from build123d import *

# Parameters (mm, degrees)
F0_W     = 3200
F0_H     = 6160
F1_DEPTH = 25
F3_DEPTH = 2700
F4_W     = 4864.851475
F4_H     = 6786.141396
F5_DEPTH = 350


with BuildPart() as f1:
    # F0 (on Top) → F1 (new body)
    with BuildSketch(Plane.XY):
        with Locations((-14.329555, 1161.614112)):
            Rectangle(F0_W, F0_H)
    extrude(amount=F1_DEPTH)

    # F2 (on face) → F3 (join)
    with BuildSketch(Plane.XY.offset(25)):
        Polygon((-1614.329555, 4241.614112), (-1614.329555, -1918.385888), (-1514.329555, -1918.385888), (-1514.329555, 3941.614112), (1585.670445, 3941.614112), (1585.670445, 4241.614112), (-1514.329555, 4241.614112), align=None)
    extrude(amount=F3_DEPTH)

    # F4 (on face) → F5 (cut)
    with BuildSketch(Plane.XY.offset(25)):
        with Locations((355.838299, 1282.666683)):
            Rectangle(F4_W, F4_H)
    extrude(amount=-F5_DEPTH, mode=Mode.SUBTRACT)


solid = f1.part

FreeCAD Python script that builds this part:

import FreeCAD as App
import Part
import Sketcher
from FreeCAD import Vector
Q = App.Units.Quantity

doc = App.newDocument("Part")
body = doc.addObject("PartDesign::Body", "Body")

sketch1 = body.newObject("Sketcher::SketchObject", "Sketch")
sketch1.AttachmentSupport = (doc.getObject("XY_Plane"), [""])
sketch1.MapMode = "FlatFace"
sketch1.addGeometry([
    Part.LineSegment(Vector(-1614, 4242, 0), Vector(-1614, -1918, 0)),
    Part.LineSegment(Vector(-1614, -1918, 0), Vector(1586, -1918, 0)),
    Part.LineSegment(Vector(1586, -1918, 0), Vector(1586, 4242, 0)),
    Part.LineSegment(Vector(1586, 4242, 0), Vector(-1614, 4242, 0)),
], False)
sketch1.addConstraint([
    Sketcher.Constraint("Coincident", 0, 2, 1, 1),
    Sketcher.Constraint("Coincident", 1, 2, 2, 1),
    Sketcher.Constraint("Coincident", 2, 2, 3, 1),
    Sketcher.Constraint("Coincident", 3, 2, 0, 1),
    Sketcher.Constraint("Vertical", 0),
    Sketcher.Constraint("Horizontal", 1),
    Sketcher.Constraint("Vertical", 2),
    Sketcher.Constraint("Horizontal", 3),
    Sketcher.Constraint("DistanceX", 1, 1, 1, 2, Q("3200 mm")),
    Sketcher.Constraint("DistanceY", 0, 2, 0, 1, Q("6160 mm")),
    Sketcher.Constraint("DistanceY", 0, 2, -1, 1, Q("1918.385888 mm")),
    Sketcher.Constraint("DistanceX", 0, 2, -1, 1, Q("1614.329555 mm")),
])
pad1 = body.newObject("PartDesign::Pad", "Pad")
pad1.Profile = sketch1
pad1.Length = 25

sketch2 = body.newObject("Sketcher::SketchObject", "Sketch001")
sketch2.AttachmentSupport = (doc.getObject("XY_Plane"), [""])
sketch2.MapMode = "FlatFace"
sketch2.AttachmentOffset = App.Placement(Vector(0, 0, 25), App.Rotation())
sketch2.addGeometry([
    Part.LineSegment(Vector(-1614, 4242, 0), Vector(-1614, -1918, 0)),
    Part.LineSegment(Vector(-1614, -1918, 0), Vector(-1514, -1918, 0)),
    Part.LineSegment(Vector(-1514, -1918, 0), Vector(-1514, 3942, 0)),
    Part.LineSegment(Vector(-1514, 3942, 0), Vector(1586, 3942, 0)),
    Part.LineSegment(Vector(1586, 3942, 0), Vector(1586, 4242, 0)),
    Part.LineSegment(Vector(1586, 4242, 0), Vector(-1614, 4242, 0)),
], False)
sketch2.addConstraint([
    Sketcher.Constraint("Coincident", 0, 2, 1, 1),
    Sketcher.Constraint("Coincident", 1, 2, 2, 1),
    Sketcher.Constraint("Coincident", 2, 2, 3, 1),
    Sketcher.Constraint("Coincident", 3, 2, 4, 1),
    Sketcher.Constraint("Coincident", 4, 2, 5, 1),
    Sketcher.Constraint("Coincident", 5, 2, 0, 1),
    Sketcher.Constraint("Vertical", 0),
    Sketcher.Constraint("Horizontal", 1),
    Sketcher.Constraint("Vertical", 2),
    Sketcher.Constraint("Horizontal", 3),
    Sketcher.Constraint("Vertical", 4),
    Sketcher.Constraint("Horizontal", 5),
    Sketcher.Constraint("DistanceX", 1, 1, 1, 2, Q("100 mm")),
    Sketcher.Constraint("DistanceX", 3, 1, 3, 2, Q("3100 mm")),
    Sketcher.Constraint("DistanceY", 0, 2, 0, 1, Q("6160 mm")),
    Sketcher.Constraint("DistanceY", 2, 1, 2, 2, Q("5860 mm")),
    Sketcher.Constraint("DistanceY", 0, 2, -1, 1, Q("1918.385888 mm")),
    Sketcher.Constraint("DistanceX", 0, 2, -1, 1, Q("1614.329555 mm")),
])
pad2 = body.newObject("PartDesign::Pad", "Pad001")
pad2.Profile = sketch2
pad2.Length = 2700

sketch3 = body.newObject("Sketcher::SketchObject", "Sketch002")
sketch3.AttachmentSupport = (doc.getObject("XY_Plane"), [""])
sketch3.MapMode = "FlatFace"
sketch3.AttachmentOffset = App.Placement(Vector(0, 0, 25), App.Rotation())
sketch3.addGeometry([
    Part.LineSegment(Vector(-2077, 4676, 0), Vector(-2077, -2110, 0)),
    Part.LineSegment(Vector(-2077, -2110, 0), Vector(2788, -2110, 0)),
    Part.LineSegment(Vector(2788, -2110, 0), Vector(2788, 4676, 0)),
    Part.LineSegment(Vector(2788, 4676, 0), Vector(-2077, 4676, 0)),
], False)
sketch3.addConstraint([
    Sketcher.Constraint("Coincident", 0, 2, 1, 1),
    Sketcher.Constraint("Coincident", 1, 2, 2, 1),
    Sketcher.Constraint("Coincident", 2, 2, 3, 1),
    Sketcher.Constraint("Coincident", 3, 2, 0, 1),
    Sketcher.Constraint("Vertical", 0),
    Sketcher.Constraint("Horizontal", 1),
    Sketcher.Constraint("Vertical", 2),
    Sketcher.Constraint("Horizontal", 3),
    Sketcher.Constraint("DistanceX", 1, 1, 1, 2, Q("4864.851475 mm")),
    Sketcher.Constraint("DistanceY", 0, 2, 0, 1, Q("6786.141396 mm")),
    Sketcher.Constraint("DistanceX", 0, 2, -1, 1, Q("2076.587439 mm")),
    Sketcher.Constraint("DistanceY", -1, 1, 2, 2, Q("4675.737381 mm")),
])
pocket1 = body.newObject("PartDesign::Pocket", "Pocket")
pocket1.Profile = sketch3
pocket1.Length = 350

doc.recompute()
